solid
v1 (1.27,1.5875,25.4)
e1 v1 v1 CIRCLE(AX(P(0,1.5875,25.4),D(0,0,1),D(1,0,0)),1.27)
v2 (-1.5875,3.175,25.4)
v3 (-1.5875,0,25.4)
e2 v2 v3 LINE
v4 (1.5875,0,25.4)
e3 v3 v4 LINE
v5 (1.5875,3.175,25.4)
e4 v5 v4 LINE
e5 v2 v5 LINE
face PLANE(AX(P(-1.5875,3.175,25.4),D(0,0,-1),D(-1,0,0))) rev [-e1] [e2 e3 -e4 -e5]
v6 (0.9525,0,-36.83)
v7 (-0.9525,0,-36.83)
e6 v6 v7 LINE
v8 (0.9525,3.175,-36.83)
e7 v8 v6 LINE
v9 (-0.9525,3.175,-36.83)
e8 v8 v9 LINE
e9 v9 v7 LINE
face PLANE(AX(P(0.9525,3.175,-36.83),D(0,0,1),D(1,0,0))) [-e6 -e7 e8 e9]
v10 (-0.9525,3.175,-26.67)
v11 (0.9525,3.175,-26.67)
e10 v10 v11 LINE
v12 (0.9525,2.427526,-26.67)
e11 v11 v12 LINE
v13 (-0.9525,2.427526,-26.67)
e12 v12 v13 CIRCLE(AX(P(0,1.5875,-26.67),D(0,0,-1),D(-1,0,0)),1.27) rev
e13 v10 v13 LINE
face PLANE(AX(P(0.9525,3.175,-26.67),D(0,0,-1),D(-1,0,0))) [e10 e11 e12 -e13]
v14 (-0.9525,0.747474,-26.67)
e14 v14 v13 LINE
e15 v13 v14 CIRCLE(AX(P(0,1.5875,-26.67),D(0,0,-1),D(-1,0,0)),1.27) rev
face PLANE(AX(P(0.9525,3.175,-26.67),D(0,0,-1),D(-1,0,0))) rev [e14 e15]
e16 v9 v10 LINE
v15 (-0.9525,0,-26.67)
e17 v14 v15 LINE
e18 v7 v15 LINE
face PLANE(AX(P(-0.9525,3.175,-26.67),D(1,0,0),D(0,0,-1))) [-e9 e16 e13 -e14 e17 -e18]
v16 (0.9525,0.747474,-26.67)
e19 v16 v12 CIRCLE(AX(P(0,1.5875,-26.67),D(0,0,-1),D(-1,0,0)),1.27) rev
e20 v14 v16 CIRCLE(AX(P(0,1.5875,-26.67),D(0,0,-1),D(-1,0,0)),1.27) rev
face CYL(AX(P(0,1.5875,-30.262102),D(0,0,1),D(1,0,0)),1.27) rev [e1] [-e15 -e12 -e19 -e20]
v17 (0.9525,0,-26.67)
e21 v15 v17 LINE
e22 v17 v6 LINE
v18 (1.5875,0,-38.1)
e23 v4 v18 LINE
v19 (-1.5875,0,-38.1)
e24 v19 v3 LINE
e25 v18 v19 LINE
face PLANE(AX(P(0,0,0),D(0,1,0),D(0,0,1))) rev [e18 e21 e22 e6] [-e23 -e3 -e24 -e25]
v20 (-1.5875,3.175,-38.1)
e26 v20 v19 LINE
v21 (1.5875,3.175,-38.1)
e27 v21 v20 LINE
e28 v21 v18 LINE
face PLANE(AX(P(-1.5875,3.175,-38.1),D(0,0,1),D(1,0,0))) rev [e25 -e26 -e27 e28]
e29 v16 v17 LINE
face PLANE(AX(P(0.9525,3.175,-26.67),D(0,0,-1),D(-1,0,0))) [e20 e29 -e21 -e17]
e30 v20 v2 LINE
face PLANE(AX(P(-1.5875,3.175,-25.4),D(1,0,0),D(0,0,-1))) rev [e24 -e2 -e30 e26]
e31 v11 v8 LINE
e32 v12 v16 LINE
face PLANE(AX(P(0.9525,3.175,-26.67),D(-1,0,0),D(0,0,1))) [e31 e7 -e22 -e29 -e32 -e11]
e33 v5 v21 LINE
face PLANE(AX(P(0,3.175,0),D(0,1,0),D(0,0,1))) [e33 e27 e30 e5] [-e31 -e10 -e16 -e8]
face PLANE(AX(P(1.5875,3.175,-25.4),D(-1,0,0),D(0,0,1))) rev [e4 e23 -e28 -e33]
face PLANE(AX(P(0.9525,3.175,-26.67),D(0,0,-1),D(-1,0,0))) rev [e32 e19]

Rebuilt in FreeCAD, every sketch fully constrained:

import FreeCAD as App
import Part
import Sketcher
Q = App.Units.Quantity

doc = App.newDocument("Part")
body = doc.addObject("PartDesign::Body", "Body")

# Sketch on XZ plane
sketch1 = body.newObject("Sketcher::SketchObject", "Sketch")
sketch1.AttachmentSupport = (doc.getObject("XZ_Plane"), [""])
sketch1.MapMode = "FlatFace"
sketch1.addGeometry([
    Part.LineSegment(App.Vector(-1.6, 25.4, 0), App.Vector(1.6, 25.4, 0)),  # 0
    Part.LineSegment(App.Vector(1.6, 25.4, 0), App.Vector(1.6, -38.1, 0)),  # 1
    Part.LineSegment(App.Vector(1.6, -38.1, 0), App.Vector(-1.6, -38.1, 0)),  # 2
    Part.LineSegment(App.Vector(-1.6, -38.1, 0), App.Vector(-1.6, 25.4, 0)),  # 3
    Part.LineSegment(App.Vector(1, -26.7, 0), App.Vector(-1, -26.7, 0)),  # 4
    Part.LineSegment(App.Vector(-1, -26.7, 0), App.Vector(-1, -36.8, 0)),  # 5
    Part.LineSegment(App.Vector(-1, -36.8, 0), App.Vector(1, -36.8, 0)),  # 6
    Part.LineSegment(App.Vector(1, -36.8, 0), App.Vector(1, -26.7, 0)),  # 7
], False)
sketch1.addConstraint([
    Sketcher.Constraint("Coincident", 0, 2, 1, 1),
    Sketcher.Constraint("Coincident", 1, 2, 2, 1),
    Sketcher.Constraint("Coincident", 2, 2, 3, 1),
    Sketcher.Constraint("Coincident", 3, 2, 0, 1),
    Sketcher.Constraint("Coincident", 4, 2, 5, 1),
    Sketcher.Constraint("Coincident", 5, 2, 6, 1),
    Sketcher.Constraint("Coincident", 6, 2, 7, 1),
    Sketcher.Constraint("Coincident", 7, 2, 4, 1),
    Sketcher.Constraint("Horizontal", 0),
    Sketcher.Constraint("Vertical", 1),
    Sketcher.Constraint("Horizontal", 2),
    Sketcher.Constraint("Vertical", 3),
    Sketcher.Constraint("Horizontal", 4),
    Sketcher.Constraint("Vertical", 5),
    Sketcher.Constraint("Horizontal", 6),
    Sketcher.Constraint("Vertical", 7),
    Sketcher.Constraint("DistanceY", 1, 2, 1, 1, Q("2.5 in")),
    Sketcher.Constraint("DistanceY", 5, 2, 5, 1, Q("0.4 in")),
    Sketcher.Constraint("DistanceY", -1, 1, 0, 2, Q("1 in")),
    Sketcher.Constraint("DistanceX", 4, 2, 1, 2, Q("0.1 in")),
    Sketcher.Constraint("DistanceX", 2, 2, 6, 2, Q("0.1 in")),
    Sketcher.Constraint("DistanceX", 0, 1, 0, 2, Q("0.125 in")),
    Sketcher.Constraint("DistanceY", 4, 2, -1, 1, Q("1.05 in")),
    Sketcher.Constraint("DistanceX", -1, 1, 0, 2, Q("0.0625 in")),
])
pad1 = body.newObject("PartDesign::Pad", "Pad")
pad1.Profile = sketch1
pad1.Length = Q("0.125 in")
pad1.Reversed = True

# Sketch on XY plane
sketch2 = body.newObject("Sketcher::SketchObject", "Sketch001")
sketch2.AttachmentSupport = (doc.getObject("XY_Plane"), [""])
sketch2.MapMode = "FlatFace"
sketch2.AttachmentOffset = App.Placement(App.Vector(0, 0, 1 * 25.4), App.Rotation())
sketch2.addGeometry(Part.Circle(App.Vector(0, 1.6, 0), App.Vector(0, 0, 1), 1.3), False)
sketch2.addConstraint([
    Sketcher.Constraint("PointOnObject", 0, 3, -2),
    Sketcher.Constraint("Diameter", 0, Q("0.1 in")),
    Sketcher.Constraint("DistanceY", -1, 1, 0, 3, Q("0.0625 in")),
])
pocket1 = body.newObject("PartDesign::Pocket", "Pocket")
pocket1.Profile = sketch2
pocket1.Length = Q("2.05 in")

doc.recompute()
